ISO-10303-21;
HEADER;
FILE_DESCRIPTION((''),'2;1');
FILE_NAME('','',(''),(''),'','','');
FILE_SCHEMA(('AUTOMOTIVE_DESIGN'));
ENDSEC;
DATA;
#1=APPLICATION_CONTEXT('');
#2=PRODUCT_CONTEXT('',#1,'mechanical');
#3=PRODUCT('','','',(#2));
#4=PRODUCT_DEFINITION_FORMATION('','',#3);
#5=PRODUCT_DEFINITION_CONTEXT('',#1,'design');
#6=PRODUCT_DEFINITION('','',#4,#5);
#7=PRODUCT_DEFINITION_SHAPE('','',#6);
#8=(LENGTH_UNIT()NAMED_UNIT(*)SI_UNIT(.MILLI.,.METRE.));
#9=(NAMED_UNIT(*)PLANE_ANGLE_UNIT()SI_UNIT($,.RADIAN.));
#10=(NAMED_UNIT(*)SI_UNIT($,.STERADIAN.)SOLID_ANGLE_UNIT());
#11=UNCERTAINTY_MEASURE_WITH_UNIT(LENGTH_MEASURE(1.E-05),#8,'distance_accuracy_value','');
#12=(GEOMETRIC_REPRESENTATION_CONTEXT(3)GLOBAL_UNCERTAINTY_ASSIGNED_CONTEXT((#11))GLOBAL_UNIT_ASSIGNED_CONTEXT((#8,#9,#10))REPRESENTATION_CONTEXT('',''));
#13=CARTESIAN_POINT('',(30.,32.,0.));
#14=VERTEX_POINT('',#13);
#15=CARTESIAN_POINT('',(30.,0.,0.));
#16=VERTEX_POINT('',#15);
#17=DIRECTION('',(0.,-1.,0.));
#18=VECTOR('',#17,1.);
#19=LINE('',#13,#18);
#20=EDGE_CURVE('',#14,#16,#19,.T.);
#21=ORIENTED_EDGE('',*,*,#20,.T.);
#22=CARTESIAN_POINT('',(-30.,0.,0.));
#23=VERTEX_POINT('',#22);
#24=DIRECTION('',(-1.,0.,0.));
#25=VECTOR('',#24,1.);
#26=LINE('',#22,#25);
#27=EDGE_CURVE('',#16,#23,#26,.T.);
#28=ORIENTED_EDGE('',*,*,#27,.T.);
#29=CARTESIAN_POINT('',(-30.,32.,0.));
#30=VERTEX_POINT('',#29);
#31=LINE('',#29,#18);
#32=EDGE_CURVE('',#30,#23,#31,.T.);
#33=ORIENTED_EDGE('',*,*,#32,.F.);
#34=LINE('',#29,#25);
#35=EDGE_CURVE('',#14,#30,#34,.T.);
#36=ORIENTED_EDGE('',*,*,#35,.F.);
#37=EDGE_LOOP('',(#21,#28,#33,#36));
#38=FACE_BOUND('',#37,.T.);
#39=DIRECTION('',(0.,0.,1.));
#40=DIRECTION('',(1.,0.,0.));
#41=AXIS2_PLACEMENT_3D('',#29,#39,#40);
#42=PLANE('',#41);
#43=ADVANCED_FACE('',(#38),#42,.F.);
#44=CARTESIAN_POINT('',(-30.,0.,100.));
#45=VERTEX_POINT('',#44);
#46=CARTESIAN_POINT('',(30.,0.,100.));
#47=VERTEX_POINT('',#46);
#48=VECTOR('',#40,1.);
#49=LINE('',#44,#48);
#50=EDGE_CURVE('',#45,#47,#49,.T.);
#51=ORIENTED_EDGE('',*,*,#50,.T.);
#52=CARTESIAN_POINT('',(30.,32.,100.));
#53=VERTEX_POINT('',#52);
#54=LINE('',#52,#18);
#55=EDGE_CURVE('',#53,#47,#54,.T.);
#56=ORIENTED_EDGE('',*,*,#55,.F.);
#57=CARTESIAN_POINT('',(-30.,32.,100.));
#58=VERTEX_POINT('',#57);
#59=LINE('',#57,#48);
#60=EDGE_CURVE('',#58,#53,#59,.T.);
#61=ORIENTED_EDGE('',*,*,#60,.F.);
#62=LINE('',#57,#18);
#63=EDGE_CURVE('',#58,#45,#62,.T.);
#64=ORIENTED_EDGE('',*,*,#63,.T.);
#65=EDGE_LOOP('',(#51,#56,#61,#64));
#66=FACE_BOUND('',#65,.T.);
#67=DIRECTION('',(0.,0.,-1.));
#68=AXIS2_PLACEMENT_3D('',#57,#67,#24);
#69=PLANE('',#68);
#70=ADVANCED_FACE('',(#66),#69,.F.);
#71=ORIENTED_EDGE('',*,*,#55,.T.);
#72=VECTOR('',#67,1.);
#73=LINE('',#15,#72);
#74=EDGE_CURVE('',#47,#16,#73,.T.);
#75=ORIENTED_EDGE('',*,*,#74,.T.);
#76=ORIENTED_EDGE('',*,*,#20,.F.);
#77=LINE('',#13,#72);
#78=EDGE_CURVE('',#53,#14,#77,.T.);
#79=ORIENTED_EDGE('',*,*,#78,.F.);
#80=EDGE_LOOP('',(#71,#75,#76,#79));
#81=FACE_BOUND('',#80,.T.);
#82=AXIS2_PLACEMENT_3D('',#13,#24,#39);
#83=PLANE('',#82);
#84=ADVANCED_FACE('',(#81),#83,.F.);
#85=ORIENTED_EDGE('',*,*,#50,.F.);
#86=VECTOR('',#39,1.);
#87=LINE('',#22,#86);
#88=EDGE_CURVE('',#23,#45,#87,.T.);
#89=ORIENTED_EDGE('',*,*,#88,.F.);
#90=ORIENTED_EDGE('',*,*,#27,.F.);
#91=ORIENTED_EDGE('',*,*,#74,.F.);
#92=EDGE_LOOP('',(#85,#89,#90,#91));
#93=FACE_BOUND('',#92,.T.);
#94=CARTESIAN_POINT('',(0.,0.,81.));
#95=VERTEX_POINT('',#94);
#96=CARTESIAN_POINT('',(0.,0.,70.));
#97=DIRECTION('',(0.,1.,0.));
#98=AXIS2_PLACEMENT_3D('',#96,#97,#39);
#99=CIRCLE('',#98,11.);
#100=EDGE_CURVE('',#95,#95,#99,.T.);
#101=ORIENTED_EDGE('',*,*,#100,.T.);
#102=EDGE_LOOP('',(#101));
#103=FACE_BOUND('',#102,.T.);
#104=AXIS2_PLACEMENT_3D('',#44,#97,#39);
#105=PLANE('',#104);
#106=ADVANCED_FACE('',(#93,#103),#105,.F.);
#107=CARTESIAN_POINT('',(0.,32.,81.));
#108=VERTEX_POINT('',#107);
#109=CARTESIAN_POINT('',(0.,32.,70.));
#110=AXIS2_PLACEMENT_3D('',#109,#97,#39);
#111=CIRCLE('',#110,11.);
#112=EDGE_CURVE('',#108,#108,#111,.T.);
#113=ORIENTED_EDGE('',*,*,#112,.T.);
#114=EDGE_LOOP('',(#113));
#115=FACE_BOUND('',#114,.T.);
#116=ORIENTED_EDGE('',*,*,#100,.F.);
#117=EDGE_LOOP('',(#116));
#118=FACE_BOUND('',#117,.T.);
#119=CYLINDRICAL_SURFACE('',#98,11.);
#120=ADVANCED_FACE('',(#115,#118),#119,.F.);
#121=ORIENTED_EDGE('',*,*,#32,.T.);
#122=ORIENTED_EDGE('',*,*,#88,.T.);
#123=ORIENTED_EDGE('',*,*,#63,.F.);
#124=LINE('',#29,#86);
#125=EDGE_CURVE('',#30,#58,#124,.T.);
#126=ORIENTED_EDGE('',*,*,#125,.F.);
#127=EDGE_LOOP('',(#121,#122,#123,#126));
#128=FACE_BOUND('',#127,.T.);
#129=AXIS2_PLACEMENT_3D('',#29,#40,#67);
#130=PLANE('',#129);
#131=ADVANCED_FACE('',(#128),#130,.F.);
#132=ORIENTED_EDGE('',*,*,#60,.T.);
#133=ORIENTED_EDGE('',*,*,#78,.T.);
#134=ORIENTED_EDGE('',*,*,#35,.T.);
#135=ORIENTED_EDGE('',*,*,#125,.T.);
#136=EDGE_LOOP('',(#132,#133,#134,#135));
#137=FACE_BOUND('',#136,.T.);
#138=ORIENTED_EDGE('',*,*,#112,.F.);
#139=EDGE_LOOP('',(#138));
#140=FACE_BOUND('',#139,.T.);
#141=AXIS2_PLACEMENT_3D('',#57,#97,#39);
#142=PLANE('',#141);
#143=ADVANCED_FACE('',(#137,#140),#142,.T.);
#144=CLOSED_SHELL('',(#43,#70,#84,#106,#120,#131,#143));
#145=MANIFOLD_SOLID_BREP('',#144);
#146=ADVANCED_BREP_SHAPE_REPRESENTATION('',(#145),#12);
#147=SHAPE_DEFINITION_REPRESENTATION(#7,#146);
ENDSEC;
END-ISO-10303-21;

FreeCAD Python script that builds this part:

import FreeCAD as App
import Part
import Sketcher

V = App.Vector


def add_polygon(sketch, points):
    """Adds a closed chain of lines whose ends are joined by coincident constraints."""
    first, n = sketch.GeometryCount, len(points)
    for a, b in zip(points, points[1:] + points[:1]):
        sketch.addGeometry(Part.LineSegment(App.Vector(*a, 0), App.Vector(*b, 0)), False)
    for i in range(n):
        sketch.addConstraint(Sketcher.Constraint("Coincident", first + i, 2, first + (i + 1) % n, 1))

doc = App.newDocument("Part")
body = doc.addObject("PartDesign::Body", "Body")

sketch1 = body.newObject("Sketcher::SketchObject", "Sketch")
sketch1.AttachmentSupport = (doc.getObject("XZ_Plane"), [""])
sketch1.MapMode = "FlatFace"
add_polygon(sketch1, [(-30, 0), (-30, 100), (30, 100), (30, 0)])
sketch1.addConstraint(Sketcher.Constraint("Vertical", 0))
sketch1.addConstraint(Sketcher.Constraint("Horizontal", 1))
sketch1.addConstraint(Sketcher.Constraint("Vertical", 2))
sketch1.addConstraint(Sketcher.Constraint("Horizontal", 3))
sketch1.addConstraint(Sketcher.Constraint("Symmetric", 2, 2, 3, 2, -1, 1))
sketch1.addConstraint(Sketcher.Constraint("DistanceX", 1, 1, 1, 2, 60.0))
sketch1.addConstraint(Sketcher.Constraint("DistanceY", 0, 1, 0, 2, 100.0))
pad1 = body.newObject("PartDesign::Pad", "Pad")
pad1.Profile = sketch1
pad1.Length = 32
pad1.Reversed = True

sketch2 = body.newObject("Sketcher::SketchObject", "Sketch001")
sketch2.AttachmentSupport = (doc.getObject("XZ_Plane"), [""])
sketch2.MapMode = "FlatFace"
sketch2.AttachmentOffset = App.Placement(V(0, 0, -32), App.Rotation())
sketch2.addGeometry(Part.Circle(V(0, 70, 0), V(0, 0, 1), 11), False)
sketch2.addConstraint(Sketcher.Constraint("PointOnObject", 0, 3, -2))
sketch2.addConstraint(Sketcher.Constraint("Diameter", 0, 22.0))
sketch2.addConstraint(Sketcher.Constraint("DistanceY", -1, 1, 0, 3, 70.0))
pocket1 = body.newObject("PartDesign::Pocket", "Pocket")
pocket1.Profile = sketch2
pocket1.Type = "ThroughAll"
pocket1.Reversed = True

doc.recompute()
